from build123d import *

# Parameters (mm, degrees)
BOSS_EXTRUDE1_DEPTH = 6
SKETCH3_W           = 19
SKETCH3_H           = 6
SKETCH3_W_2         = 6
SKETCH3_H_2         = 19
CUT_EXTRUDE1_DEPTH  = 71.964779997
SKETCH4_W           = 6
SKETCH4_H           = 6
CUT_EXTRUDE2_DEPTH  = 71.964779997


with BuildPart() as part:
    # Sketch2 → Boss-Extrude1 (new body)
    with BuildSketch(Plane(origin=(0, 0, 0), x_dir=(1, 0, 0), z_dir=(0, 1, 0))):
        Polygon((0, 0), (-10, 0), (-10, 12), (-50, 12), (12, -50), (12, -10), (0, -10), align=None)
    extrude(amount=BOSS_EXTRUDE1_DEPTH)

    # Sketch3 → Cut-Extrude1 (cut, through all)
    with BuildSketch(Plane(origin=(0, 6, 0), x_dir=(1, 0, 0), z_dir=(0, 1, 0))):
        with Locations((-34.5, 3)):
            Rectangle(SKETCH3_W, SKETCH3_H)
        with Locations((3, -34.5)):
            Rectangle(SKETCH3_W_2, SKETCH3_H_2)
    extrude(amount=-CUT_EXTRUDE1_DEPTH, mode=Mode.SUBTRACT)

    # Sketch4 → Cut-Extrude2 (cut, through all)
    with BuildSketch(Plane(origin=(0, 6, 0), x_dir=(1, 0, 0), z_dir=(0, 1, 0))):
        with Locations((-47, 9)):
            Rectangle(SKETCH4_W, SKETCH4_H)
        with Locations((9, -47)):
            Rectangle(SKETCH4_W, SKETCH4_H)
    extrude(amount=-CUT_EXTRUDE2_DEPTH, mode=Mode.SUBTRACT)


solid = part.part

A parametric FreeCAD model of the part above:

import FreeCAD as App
import Part
import Sketcher
from FreeCAD import Vector


def add_polygon(sketch, points):
    """Adds a closed chain of lines whose ends are joined by coincident constraints."""
    first, n = sketch.GeometryCount, len(points)
    for a, b in zip(points, points[1:] + points[:1]):
        sketch.addGeometry(Part.LineSegment(App.Vector(*a, 0), App.Vector(*b, 0)), False)
    for i in range(n):
        sketch.addConstraint(Sketcher.Constraint("Coincident", first + i, 2, first + (i + 1) % n, 1))

doc = App.newDocument("Part")
body = doc.addObject("PartDesign::Body", "Body")

# Sketch on XZ plane
sketch1 = body.newObject("Sketcher::SketchObject", "Sketch")
sketch1.AttachmentSupport = (doc.getObject("XZ_Plane"), [""])
sketch1.MapMode = "FlatFace"
add_polygon(sketch1, [(0, 0), (-10, 0), (-10, -12), (-50, -12), (12, 50), (12, 10), (0, 10)])  # lines 0-6
sketch1.addConstraint([
    Sketcher.Constraint("Horizontal", 0),
    Sketcher.Constraint("Vertical", 1),
    Sketcher.Constraint("Horizontal", 2),
    Sketcher.Constraint("Vertical", 4),
    Sketcher.Constraint("Horizontal", 5),
    Sketcher.Constraint("Vertical", 6),
    Sketcher.Constraint("Coincident", 6, 2, -1, 1),
    Sketcher.Constraint("Equal", 5, 1),
    Sketcher.Constraint("Equal", 2, 4),
    Sketcher.Constraint("Equal", 0, 6),
    Sketcher.Constraint("DistanceX", 0, 2, 0, 1, 10.0),
    Sketcher.Constraint("DistanceX", 2, 2, 2, 1, 40.0),
    Sketcher.Constraint("DistanceX", 5, 2, 5, 1, 12.0),
])
pad1 = body.newObject("PartDesign::Pad", "Pad")
pad1.Profile = sketch1
pad1.Length = 6
pad1.Reversed = True

# Sketch on XZ plane
sketch2 = body.newObject("Sketcher::SketchObject", "Sketch001")
sketch2.AttachmentSupport = (doc.getObject("XZ_Plane"), [""])
sketch2.MapMode = "FlatFace"
sketch2.AttachmentOffset = App.Placement(Vector(0, 0, -6), App.Rotation())
add_polygon(sketch2, [(-44, -6), (-44, 0), (-25, 0), (-25, -6)])  # lines 0-3
add_polygon(sketch2, [(0, 25), (0, 44), (6, 44), (6, 25)])  # lines 4-7
sketch2.addConstraint([
    Sketcher.Constraint("Vertical", 0),
    Sketcher.Constraint("Horizontal", 1),
    Sketcher.Constraint("Vertical", 2),
    Sketcher.Constraint("Horizontal", 3),
    Sketcher.Constraint("Vertical", 4),
    Sketcher.Constraint("Horizontal", 5),
    Sketcher.Constraint("Vertical", 6),
    Sketcher.Constraint("Horizontal", 7),
    Sketcher.Constraint("PointOnObject", 0, 2, -1),
    Sketcher.Constraint("PointOnObject", 4, 2, -2),
    Sketcher.Constraint("Equal", 7, 0),
    Sketcher.Constraint("Equal", 3, 4),
    Sketcher.Constraint("DistanceX", 1, 1, 1, 2, 19.0),
    Sketcher.Constraint("DistanceX", 5, 1, 5, 2, 6.0),
    Sketcher.Constraint("DistanceX", 0, 2, -1, 1, 44.0),
    Sketcher.Constraint("DistanceY", -1, 1, 4, 2, 44.0),
])
pocket1 = body.newObject("PartDesign::Pocket", "Pocket")
pocket1.Profile = sketch2
pocket1.Type = "ThroughAll"
pocket1.Reversed = True

# Sketch on XZ plane
sketch3 = body.newObject("Sketcher::SketchObject", "Sketch002")
sketch3.AttachmentSupport = (doc.getObject("XZ_Plane"), [""])
sketch3.MapMode = "FlatFace"
sketch3.AttachmentOffset = App.Placement(Vector(0, 0, -6), App.Rotation())
add_polygon(sketch3, [(-50, -12), (-50, -6), (-44, -6), (-44, -12)])  # lines 0-3
add_polygon(sketch3, [(6, 44), (6, 50), (12, 50), (12, 44)])  # lines 4-7
sketch3.addConstraint([
    Sketcher.Constraint("Vertical", 0),
    Sketcher.Constraint("Horizontal", 1),
    Sketcher.Constraint("Vertical", 2),
    Sketcher.Constraint("Horizontal", 3),
    Sketcher.Constraint("Vertical", 4),
    Sketcher.Constraint("Horizontal", 5),
    Sketcher.Constraint("Vertical", 6),
    Sketcher.Constraint("Horizontal", 7),
    Sketcher.Constraint("Equal", 3, 5),
    Sketcher.Constraint("Equal", 7, 0),
    Sketcher.Constraint("Equal", 2, 4),
    Sketcher.Constraint("DistanceX", 1, 1, 1, 2, 6.0),
    Sketcher.Constraint("DistanceX", 0, 2, -1, 1, 50.0),
    Sketcher.Constraint("DistanceY", 0, 2, -1, 1, 6.0),
    Sketcher.Constraint("DistanceX", -1, 1, 4, 2, 6.0),
    Sketcher.Constraint("DistanceY", -1, 1, 4, 2, 50.0),
])
pocket2 = body.newObject("PartDesign::Pocket", "Pocket001")
pocket2.Profile = sketch3
pocket2.Type = "ThroughAll"
pocket2.Reversed = True

doc.recompute()
